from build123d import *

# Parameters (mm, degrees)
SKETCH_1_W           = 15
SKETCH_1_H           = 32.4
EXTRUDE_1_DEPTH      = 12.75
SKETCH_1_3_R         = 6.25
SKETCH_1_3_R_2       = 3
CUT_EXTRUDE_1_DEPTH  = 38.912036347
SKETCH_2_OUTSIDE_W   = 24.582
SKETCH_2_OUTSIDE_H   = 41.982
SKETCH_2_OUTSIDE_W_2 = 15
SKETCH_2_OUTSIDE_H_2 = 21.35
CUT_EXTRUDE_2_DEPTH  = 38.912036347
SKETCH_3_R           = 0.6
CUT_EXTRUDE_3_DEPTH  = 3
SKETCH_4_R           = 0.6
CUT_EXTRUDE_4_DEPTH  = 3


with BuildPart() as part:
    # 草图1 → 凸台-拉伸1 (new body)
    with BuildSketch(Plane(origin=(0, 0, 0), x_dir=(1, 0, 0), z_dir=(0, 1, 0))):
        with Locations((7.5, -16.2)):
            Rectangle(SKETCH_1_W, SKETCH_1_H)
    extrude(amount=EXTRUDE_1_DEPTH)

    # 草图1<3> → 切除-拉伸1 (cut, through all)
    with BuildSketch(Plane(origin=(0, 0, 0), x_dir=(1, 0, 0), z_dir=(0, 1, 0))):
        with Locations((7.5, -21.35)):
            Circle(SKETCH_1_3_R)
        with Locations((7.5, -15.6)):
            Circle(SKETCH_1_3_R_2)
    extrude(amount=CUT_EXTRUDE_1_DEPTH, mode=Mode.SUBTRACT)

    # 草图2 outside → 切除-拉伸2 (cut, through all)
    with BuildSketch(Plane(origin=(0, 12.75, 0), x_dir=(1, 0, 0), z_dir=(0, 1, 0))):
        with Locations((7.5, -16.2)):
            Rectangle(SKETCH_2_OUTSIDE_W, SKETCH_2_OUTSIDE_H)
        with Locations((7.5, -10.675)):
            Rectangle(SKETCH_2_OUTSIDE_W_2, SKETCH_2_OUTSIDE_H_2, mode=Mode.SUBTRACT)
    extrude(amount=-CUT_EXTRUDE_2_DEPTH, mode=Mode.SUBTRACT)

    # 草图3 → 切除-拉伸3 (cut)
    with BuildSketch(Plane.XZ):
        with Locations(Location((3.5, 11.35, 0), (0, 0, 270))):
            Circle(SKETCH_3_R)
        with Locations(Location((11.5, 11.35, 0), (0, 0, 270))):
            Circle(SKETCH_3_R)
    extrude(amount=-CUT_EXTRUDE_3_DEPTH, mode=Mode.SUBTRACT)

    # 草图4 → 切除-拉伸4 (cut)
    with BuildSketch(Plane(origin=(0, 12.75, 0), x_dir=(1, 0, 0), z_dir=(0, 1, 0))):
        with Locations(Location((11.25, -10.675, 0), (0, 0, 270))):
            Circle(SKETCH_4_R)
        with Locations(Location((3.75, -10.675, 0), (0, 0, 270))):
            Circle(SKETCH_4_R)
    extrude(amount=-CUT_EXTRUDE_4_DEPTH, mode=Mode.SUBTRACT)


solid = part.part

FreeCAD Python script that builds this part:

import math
import FreeCAD as App
import Part
import Sketcher
Q = App.Units.Quantity


def add_polygon(sketch, points):
    """Adds a closed chain of lines whose ends are joined by coincident constraints."""
    first, n = sketch.GeometryCount, len(points)
    for a, b in zip(points, points[1:] + points[:1]):
        sketch.addGeometry(Part.LineSegment(App.Vector(*a, 0), App.Vector(*b, 0)), False)
    for i in range(n):
        sketch.addConstraint(Sketcher.Constraint("Coincident", first + i, 2, first + (i + 1) % n, 1))

doc = App.newDocument("Part")
body = doc.addObject("PartDesign::Body", "Body")

sketch1 = body.newObject("Sketcher::SketchObject", "Sketch")
sketch1.AttachmentSupport = (doc.getObject("XZ_Plane"), [""])
sketch1.MapMode = "FlatFace"
add_polygon(sketch1, [(0, 0), (0, 32), (15, 32), (15, 0)])
sketch1.addConstraint([
    Sketcher.Constraint("Vertical", 0),
    Sketcher.Constraint("Horizontal", 1),
    Sketcher.Constraint("Vertical", 2),
    Sketcher.Constraint("Horizontal", 3),
    Sketcher.Constraint("Coincident", 3, 2, -1, 1),
    Sketcher.Constraint("DistanceX", 1, 1, 1, 2, Q("15 mm")),
    Sketcher.Constraint("DistanceY", 0, 1, 0, 2, Q("32.4 mm")),
])
pad1 = body.newObject("PartDesign::Pad", "Pad")
pad1.Profile = sketch1
pad1.Length = 12.75
pad1.Reversed = True

sketch2 = body.newObject("Sketcher::SketchObject", "Sketch001")
sketch2.AttachmentSupport = (doc.getObject("XZ_Plane"), [""])
sketch2.MapMode = "FlatFace"
sketch2.addGeometry([
    Part.ArcOfCircle(Part.Circle(App.Vector(7.5, 21.4, 0), App.Vector(0, 0, 1), 6.2), math.radians(-61), math.radians(241)),
    Part.ArcOfCircle(Part.Circle(App.Vector(7.5, 15.6, 0), App.Vector(0, 0, 1), 3), math.radians(175), math.radians(365)),
], False)
sketch2.addConstraint([
    Sketcher.Constraint("Coincident", 0, 1, 1, 2),
    Sketcher.Constraint("Coincident", 1, 1, 0, 2),
    Sketcher.Constraint("Horizontal", 0, 1, 1, 1),
    Sketcher.Constraint("Radius", 1, Q("3 mm")),
    Sketcher.Constraint("Radius", 0, Q("6.25 mm")),
    Sketcher.Constraint("DistanceX", -1, 1, 0, 3, Q("7.5 mm")),
    Sketcher.Constraint("DistanceY", -1, 1, 1, 3, Q("15.6 mm")),
    Sketcher.Constraint("DistanceY", -1, 1, 0, 3, Q("21.35 mm")),
])
pocket1 = body.newObject("PartDesign::Pocket", "Pocket")
pocket1.Profile = sketch2
pocket1.Type = "ThroughAll"

sketch3 = body.newObject("Sketcher::SketchObject", "Sketch002")
sketch3.AttachmentSupport = (doc.getObject("XZ_Plane"), [""])
sketch3.MapMode = "FlatFace"
sketch3.AttachmentOffset = App.Placement(App.Vector(0, 0, -12.75), App.Rotation())
add_polygon(sketch3, [(-5, -5), (-5, 37), (20, 37), (20, -5)])
add_polygon(sketch3, [(15, 21), (0, 21), (0, 0), (15, 0)])
sketch3.addConstraint([
    Sketcher.Constraint("Vertical", 0),
    Sketcher.Constraint("Horizontal", 1),
    Sketcher.Constraint("Vertical", 2),
    Sketcher.Constraint("Horizontal", 3),
    Sketcher.Constraint("Horizontal", 4),
    Sketcher.Constraint("Vertical", 5),
    Sketcher.Constraint("Horizontal", 6),
    Sketcher.Constraint("Vertical", 7),
    Sketcher.Constraint("Coincident", 5, 2, -1, 1),
    Sketcher.Constraint("DistanceX", 4, 2, 4, 1, Q("15 mm")),
    Sketcher.Constraint("DistanceY", 5, 2, 5, 1, Q("21.35 mm")),
    Sketcher.Constraint("DistanceX", 1, 1, 1, 2, Q("24.582 mm")),
    Sketcher.Constraint("DistanceY", 0, 1, 0, 2, Q("41.982 mm")),
    Sketcher.Constraint("DistanceX", 0, 2, -1, 1, Q("4.791 mm")),
    Sketcher.Constraint("DistanceY", -1, 1, 0, 2, Q("37.191 mm")),
])
pocket2 = body.newObject("PartDesign::Pocket", "Pocket001")
pocket2.Profile = sketch3
pocket2.Type = "ThroughAll"
pocket2.Reversed = True

sketch4 = body.newObject("Sketcher::SketchObject", "Sketch003")
sketch4.AttachmentSupport = (doc.getObject("XZ_Plane"), [""])
sketch4.MapMode = "FlatFace"
sketch4.addGeometry([
    Part.Circle(App.Vector(3.5, 11.3, 0), App.Vector(0, 0, 1), 0.6),
    Part.Circle(App.Vector(11.5, 11.3, 0), App.Vector(0, 0, 1), 0.6),
], False)
sketch4.addConstraint([
    Sketcher.Constraint("Equal", 0, 1),
    Sketcher.Constraint("Horizontal", 0, 3, 1, 3),
    Sketcher.Constraint("Diameter", 0, Q("1.2 mm")),
    Sketcher.Constraint("DistanceX", 0, 3, 1, 3, Q("8 mm")),
    Sketcher.Constraint("DistanceX", -1, 1, 0, 3, Q("3.5 mm")),
    Sketcher.Constraint("DistanceY", -1, 1, 0, 3, Q("11.35 mm")),
])
pocket3 = body.newObject("PartDesign::Pocket", "Pocket002")
pocket3.Profile = sketch4
pocket3.Length = 3

sketch5 = body.newObject("Sketcher::SketchObject", "Sketch004")
sketch5.AttachmentSupport = (doc.getObject("XZ_Plane"), [""])
sketch5.MapMode = "FlatFace"
sketch5.AttachmentOffset = App.Placement(App.Vector(0, 0, -12.75), App.Rotation())
sketch5.addGeometry([
    Part.Circle(App.Vector(11.2, 10.7, 0), App.Vector(0, 0, 1), 0.6),
    Part.Circle(App.Vector(3.8, 10.7, 0), App.Vector(0, 0, 1), 0.6),
], False)
sketch5.addConstraint([
    Sketcher.Constraint("Equal", 0, 1),
    Sketcher.Constraint("Horizontal", 0, 3, 1, 3),
    Sketcher.Constraint("Diameter", 0, Q("1.2 mm")),
    Sketcher.Constraint("DistanceX", 1, 3, 0, 3, Q("7.5 mm")),
    Sketcher.Constraint("DistanceX", -1, 1, 0, 3, Q("11.25 mm")),
    Sketcher.Constraint("DistanceY", -1, 1, 0, 3, Q("10.675 mm")),
])
pocket4 = body.newObject("PartDesign::Pocket", "Pocket003")
pocket4.Profile = sketch5
pocket4.Length = 3
pocket4.Reversed = True

doc.recompute()
